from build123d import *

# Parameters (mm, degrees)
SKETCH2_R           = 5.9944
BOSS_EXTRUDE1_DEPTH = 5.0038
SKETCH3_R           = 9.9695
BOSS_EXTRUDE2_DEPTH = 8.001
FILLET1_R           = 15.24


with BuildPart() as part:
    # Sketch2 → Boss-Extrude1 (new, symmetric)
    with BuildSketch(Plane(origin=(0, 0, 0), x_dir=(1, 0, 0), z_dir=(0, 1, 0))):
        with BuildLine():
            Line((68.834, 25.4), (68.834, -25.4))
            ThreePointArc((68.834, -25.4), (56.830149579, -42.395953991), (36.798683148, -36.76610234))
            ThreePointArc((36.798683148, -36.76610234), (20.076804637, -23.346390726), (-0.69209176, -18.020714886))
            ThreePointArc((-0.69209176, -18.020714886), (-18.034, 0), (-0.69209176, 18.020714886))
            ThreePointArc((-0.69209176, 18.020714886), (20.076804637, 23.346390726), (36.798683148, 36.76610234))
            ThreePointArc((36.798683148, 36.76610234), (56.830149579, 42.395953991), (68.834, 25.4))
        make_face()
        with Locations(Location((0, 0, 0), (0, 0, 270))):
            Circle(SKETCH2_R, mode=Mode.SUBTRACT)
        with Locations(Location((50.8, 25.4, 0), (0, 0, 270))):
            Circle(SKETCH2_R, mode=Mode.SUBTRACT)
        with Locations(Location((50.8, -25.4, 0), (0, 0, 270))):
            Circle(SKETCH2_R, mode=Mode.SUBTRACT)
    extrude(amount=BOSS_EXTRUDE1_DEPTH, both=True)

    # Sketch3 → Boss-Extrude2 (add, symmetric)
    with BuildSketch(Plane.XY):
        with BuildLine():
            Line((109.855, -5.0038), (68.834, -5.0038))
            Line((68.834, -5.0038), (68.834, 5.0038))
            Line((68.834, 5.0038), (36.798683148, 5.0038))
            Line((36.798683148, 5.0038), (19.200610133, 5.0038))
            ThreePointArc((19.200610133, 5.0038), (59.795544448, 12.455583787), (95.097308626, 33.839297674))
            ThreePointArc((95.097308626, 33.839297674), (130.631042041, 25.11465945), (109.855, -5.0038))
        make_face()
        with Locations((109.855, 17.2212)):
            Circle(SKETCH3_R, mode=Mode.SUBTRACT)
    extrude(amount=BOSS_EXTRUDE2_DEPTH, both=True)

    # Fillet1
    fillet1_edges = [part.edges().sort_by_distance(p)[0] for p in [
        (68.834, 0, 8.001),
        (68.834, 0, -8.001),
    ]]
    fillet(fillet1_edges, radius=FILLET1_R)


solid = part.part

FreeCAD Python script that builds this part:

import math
import FreeCAD as App
import Part
import Sketcher

V = App.Vector
Q = App.Units.Quantity


def edges_at(feature, points):
    """Names of the edges that pass closest to the given points."""
    edges = feature.Shape.Edges
    near = lambda p: min(range(len(edges)), key=lambda i: edges[i].distToShape(Part.Vertex(*p))[0])
    return sorted({f"Edge{near(p) + 1}" for p in points})

doc = App.newDocument("Part")
body = doc.addObject("PartDesign::Body", "Body")

# Sketch on XZ plane
sketch1 = body.newObject("Sketcher::SketchObject", "Sketch")
sketch1.AttachmentSupport = (doc.getObject("XZ_Plane"), [""])
sketch1.MapMode = "FlatFace"
sketch1.addGeometry([
    Part.LineSegment(V(69, 25, 0), V(69, -25, 0)),  # 0
    Part.ArcOfCircle(Part.Circle(V(51, -25, 0), V(0, 0, 1), 18), math.radians(-141), math.radians(0)),  # 1
    Part.ArcOfCircle(Part.Circle(V(-3, -69, 0), V(0, 0, 1), 51), math.radians(39), math.radians(88)),  # 2
    Part.ArcOfCircle(Part.Circle(V(0, 0, 0), V(0, 0, 1), 18), math.radians(92), math.radians(268)),  # 3
    Part.ArcOfCircle(Part.Circle(V(-3, 69, 0), V(0, 0, 1), 51), math.radians(-88), math.radians(-39)),  # 4
    Part.ArcOfCircle(Part.Circle(V(51, 25, 0), V(0, 0, 1), 18), math.radians(0), math.radians(141)),  # 5
    Part.Circle(V(51, 25, 0), V(0, 0, 1), 6),  # 6
    Part.Circle(V(51, -25, 0), V(0, 0, 1), 6),  # 7
    Part.Circle(V(0, 0, 0), V(0, 0, 1), 6),  # 8
], False)
sketch1.addConstraint([
    Sketcher.Constraint("Tangent", 0, 2, 1, 2),
    Sketcher.Constraint("Tangent", 1, 1, 2, 1),
    Sketcher.Constraint("Tangent", 2, 2, 3, 2),
    Sketcher.Constraint("Tangent", 3, 1, 4, 1),
    Sketcher.Constraint("Tangent", 4, 2, 5, 2),
    Sketcher.Constraint("Tangent", 5, 1, 0, 1),
    Sketcher.Constraint("Vertical", 0),
    Sketcher.Constraint("Coincident", 3, 3, -1, 1),
    Sketcher.Constraint("Coincident", 8, 3, -1, 1),
    Sketcher.Constraint("Coincident", 6, 3, 5, 3),
    Sketcher.Constraint("Coincident", 7, 3, 1, 3),
    Sketcher.Constraint("Equal", 1, 3),
    Sketcher.Constraint("Equal", 2, 4),
    Sketcher.Constraint("Equal", 3, 5),
    Sketcher.Constraint("Equal", 6, 7),
    Sketcher.Constraint("Equal", 7, 8),
    Sketcher.Constraint("Vertical", 2, 3, 4, 3),
    Sketcher.Constraint("Radius", 2, Q("2 in")),
    Sketcher.Constraint("DistanceY", 0, 2, 0, 1, Q("2 in")),
    Sketcher.Constraint("Radius", 1, Q("0.71 in")),
    Sketcher.Constraint("Diameter", 6, Q("0.472 in")),
    Sketcher.Constraint("DistanceX", -1, 1, 1, 3, Q("2 in")),
])
pad1 = body.newObject("PartDesign::Pad", "Pad")
pad1.Profile = sketch1
pad1.Length = Q("0.394 in")
pad1.Midplane = True

# Sketch on XY plane
sketch2 = body.newObject("Sketcher::SketchObject", "Sketch001")
sketch2.AttachmentSupport = (doc.getObject("XY_Plane"), [""])
sketch2.MapMode = "FlatFace"
sketch2.addGeometry([
    Part.LineSegment(V(69, -5, 0), V(110, -5, 0)),  # 0
    Part.ArcOfCircle(Part.Circle(V(110, 17, 0), V(0, 0, 1), 22), math.radians(-90), math.radians(132)),  # 1
    Part.ArcOfCircle(Part.Circle(V(19, 119, 0), V(0, 0, 1), 114), math.radians(-90), math.radians(-48)),  # 2
    Part.LineSegment(V(19, 5, 0), V(69, 5, 0)),  # 3
    Part.LineSegment(V(69, 5, 0), V(69, -5, 0)),  # 4
    Part.Circle(V(110, 17, 0), V(0, 0, 1), 10),  # 5
], False)
sketch2.addConstraint([
    Sketcher.Constraint("Tangent", 0, 2, 1, 1),
    Sketcher.Constraint("Tangent", 1, 2, 2, 2),
    Sketcher.Constraint("Tangent", 2, 1, 3, 1),
    Sketcher.Constraint("Coincident", 3, 2, 4, 1),
    Sketcher.Constraint("Coincident", 4, 2, 0, 1),
    Sketcher.Constraint("Horizontal", 0),
    Sketcher.Constraint("Horizontal", 3),
    Sketcher.Constraint("Vertical", 4),
    Sketcher.Constraint("Coincident", 5, 3, 1, 3),
    Sketcher.Constraint("Radius", 2, Q("4.5 in")),
    Sketcher.Constraint("Diameter", 5, Q("0.785 in")),
    Sketcher.Constraint("Radius", 1, Q("0.875 in")),
    Sketcher.Constraint("DistanceX", 0, 1, 0, 2, Q("1.615 in")),
    Sketcher.Constraint("DistanceY", 4, 2, 4, 1, Q("0.394 in")),
    Sketcher.Constraint("DistanceX", -1, 1, 3, 2, Q("2.71 in")),
    Sketcher.Constraint("DistanceY", -1, 1, 1, 3, Q("0.678 in")),
])
pad2 = body.newObject("PartDesign::Pad", "Pad001")
pad2.Profile = sketch2
pad2.Length = Q("0.63 in")
pad2.Midplane = True
doc.recompute()

fillet = body.newObject("PartDesign::Fillet", "Fillet")
fillet.Base = (pad2, edges_at(pad2, [(68.834, 0, 8.001), (68.834, 0, -8.001)]))
fillet.Radius = Q("0.6 in")

doc.recompute()
